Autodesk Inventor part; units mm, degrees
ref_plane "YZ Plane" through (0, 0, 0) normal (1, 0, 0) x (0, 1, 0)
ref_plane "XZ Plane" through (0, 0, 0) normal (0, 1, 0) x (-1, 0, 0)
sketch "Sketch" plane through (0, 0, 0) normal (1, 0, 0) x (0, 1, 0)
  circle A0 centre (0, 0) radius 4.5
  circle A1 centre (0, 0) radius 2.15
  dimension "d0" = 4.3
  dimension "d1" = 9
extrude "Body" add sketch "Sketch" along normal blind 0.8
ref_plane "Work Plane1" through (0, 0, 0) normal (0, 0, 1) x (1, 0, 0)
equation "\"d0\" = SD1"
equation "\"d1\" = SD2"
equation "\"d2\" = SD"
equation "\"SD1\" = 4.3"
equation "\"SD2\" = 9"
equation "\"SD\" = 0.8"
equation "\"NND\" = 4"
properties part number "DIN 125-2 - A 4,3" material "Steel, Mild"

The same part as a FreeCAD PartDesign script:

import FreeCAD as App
import Part
import Sketcher

V = App.Vector

doc = App.newDocument("Part")
body = doc.addObject("PartDesign::Body", "Body")

# Sketch on YZ plane
sketch1 = body.newObject("Sketcher::SketchObject", "Sketch")
sketch1.AttachmentSupport = (doc.getObject("YZ_Plane"), [""])
sketch1.MapMode = "FlatFace"
sketch1.addGeometry([
    Part.Circle(V(0, 0, 0), V(0, 0, 1), 4.5),
    Part.Circle(V(0, 0, 0), V(0, 0, 1), 2.1),
], False)
sketch1.addConstraint([
    Sketcher.Constraint("Coincident", 0, 3, -1, 1),
    Sketcher.Constraint("Coincident", 1, 3, -1, 1),
    Sketcher.Constraint("Diameter", 0, 9.0),
    Sketcher.Constraint("Diameter", 1, 4.3),
])
pad1 = body.newObject("PartDesign::Pad", "Pad")
pad1.Profile = sketch1
pad1.Length = 0.8

doc.recompute()
